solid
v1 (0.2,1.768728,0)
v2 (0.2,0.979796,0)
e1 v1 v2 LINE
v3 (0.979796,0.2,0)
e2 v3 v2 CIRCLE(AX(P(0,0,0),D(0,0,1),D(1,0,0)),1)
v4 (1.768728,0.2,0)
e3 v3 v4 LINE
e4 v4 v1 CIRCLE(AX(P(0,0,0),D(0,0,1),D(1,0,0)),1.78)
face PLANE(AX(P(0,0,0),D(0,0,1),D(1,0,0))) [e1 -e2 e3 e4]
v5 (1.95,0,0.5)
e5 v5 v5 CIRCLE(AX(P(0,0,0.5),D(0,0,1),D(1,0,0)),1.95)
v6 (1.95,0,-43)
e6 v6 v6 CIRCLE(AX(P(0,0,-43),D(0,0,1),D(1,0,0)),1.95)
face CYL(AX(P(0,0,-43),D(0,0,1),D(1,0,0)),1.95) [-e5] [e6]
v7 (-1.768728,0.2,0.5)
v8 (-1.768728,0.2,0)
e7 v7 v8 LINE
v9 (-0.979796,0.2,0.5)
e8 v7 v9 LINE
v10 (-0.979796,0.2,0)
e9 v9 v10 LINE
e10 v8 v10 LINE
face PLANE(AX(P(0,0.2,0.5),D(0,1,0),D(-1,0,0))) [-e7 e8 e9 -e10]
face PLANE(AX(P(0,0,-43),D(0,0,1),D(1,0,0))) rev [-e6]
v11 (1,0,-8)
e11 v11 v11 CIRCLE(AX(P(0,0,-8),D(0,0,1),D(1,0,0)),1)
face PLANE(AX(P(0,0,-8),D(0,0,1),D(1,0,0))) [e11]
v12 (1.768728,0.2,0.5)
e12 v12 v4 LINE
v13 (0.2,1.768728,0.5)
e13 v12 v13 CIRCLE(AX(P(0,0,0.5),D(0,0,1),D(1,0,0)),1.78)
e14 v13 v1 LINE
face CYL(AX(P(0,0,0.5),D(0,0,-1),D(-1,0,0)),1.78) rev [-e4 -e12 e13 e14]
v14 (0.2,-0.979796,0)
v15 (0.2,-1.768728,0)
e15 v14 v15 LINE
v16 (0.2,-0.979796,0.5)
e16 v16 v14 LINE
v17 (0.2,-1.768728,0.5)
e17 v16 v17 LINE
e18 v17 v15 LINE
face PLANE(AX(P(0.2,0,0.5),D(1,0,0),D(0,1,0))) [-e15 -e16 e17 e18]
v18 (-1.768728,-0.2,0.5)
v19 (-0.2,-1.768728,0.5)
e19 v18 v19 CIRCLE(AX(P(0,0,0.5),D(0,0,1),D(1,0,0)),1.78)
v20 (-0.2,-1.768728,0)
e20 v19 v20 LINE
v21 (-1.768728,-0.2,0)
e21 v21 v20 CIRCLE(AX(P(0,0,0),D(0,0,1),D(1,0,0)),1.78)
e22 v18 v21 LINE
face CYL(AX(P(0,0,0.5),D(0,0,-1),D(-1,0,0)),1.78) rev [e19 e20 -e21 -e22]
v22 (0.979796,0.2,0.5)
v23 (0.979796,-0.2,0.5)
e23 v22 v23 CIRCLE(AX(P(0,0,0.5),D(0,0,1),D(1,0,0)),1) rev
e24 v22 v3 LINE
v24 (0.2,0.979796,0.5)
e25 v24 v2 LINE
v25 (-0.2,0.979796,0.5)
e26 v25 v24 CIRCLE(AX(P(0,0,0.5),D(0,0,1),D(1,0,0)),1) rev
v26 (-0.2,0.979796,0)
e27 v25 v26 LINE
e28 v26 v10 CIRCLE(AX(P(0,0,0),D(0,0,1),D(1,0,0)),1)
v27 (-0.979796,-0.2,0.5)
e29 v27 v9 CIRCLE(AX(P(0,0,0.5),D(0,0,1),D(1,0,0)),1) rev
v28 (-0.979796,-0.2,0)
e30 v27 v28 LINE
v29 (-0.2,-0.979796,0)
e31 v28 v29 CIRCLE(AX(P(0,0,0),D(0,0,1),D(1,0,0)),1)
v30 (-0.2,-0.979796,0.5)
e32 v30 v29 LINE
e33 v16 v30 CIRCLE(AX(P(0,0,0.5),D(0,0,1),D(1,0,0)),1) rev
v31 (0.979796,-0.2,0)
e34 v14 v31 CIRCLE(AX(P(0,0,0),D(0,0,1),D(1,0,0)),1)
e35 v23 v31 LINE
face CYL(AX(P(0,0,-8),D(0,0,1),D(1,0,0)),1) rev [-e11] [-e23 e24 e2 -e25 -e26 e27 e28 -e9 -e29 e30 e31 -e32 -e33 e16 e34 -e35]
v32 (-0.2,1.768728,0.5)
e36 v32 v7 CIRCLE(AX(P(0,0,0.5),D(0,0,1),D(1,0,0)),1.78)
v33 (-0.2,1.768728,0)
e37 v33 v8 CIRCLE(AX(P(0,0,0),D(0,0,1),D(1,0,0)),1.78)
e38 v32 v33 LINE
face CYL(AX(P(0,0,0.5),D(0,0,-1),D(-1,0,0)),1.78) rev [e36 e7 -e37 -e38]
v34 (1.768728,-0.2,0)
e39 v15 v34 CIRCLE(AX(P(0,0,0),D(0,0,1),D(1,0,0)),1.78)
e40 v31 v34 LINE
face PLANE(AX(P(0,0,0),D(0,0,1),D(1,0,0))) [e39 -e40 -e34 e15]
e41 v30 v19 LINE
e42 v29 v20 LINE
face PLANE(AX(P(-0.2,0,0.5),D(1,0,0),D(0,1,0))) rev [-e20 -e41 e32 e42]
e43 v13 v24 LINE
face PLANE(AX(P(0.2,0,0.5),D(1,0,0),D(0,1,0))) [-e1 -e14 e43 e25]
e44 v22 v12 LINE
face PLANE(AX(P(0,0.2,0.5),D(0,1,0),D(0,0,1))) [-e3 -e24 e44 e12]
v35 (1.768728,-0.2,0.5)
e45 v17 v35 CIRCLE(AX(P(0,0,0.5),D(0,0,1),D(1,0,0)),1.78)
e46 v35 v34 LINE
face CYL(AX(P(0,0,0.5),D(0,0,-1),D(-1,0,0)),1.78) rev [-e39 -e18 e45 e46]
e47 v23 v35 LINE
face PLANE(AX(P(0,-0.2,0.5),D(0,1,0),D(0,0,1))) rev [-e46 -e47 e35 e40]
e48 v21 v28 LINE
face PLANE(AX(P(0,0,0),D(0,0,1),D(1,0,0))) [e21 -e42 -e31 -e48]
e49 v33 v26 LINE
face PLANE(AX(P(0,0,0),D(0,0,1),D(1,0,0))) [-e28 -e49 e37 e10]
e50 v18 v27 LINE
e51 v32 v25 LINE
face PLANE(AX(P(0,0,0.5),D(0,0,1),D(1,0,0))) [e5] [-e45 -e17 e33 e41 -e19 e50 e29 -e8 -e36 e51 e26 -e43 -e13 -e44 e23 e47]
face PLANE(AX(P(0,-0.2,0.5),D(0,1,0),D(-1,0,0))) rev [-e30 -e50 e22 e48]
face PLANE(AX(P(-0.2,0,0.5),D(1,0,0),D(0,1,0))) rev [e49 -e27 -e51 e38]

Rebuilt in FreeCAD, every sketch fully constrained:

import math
import FreeCAD as App
import Part
import Sketcher
from FreeCAD import Vector

doc = App.newDocument("Part")
params = doc.addObject("Spreadsheet::Sheet", "Params")
for row, (alias, value) in enumerate([
    ("sketch1_diameter", "3.9 mm"),
    ("pad1_length", "43 mm"),
    ("sketch2_diameter", "2 mm"),
    ("pocket1_length", "8 mm"),
    ("sketch3_radius", "1 mm"),
    ("sketch3_radius2", "1.95 mm"),
    ("sketch3_radius3", "1.78 mm"),
    ("pad2_length", "0.5 mm"),
], start=1):
    params.set(f"A{row}", alias)
    params.set(f"B{row}", "=" + value)
    params.setAlias(f"B{row}", alias)

body = doc.addObject("PartDesign::Body", "Body")

# Sketch on XY plane
sketch1 = body.newObject("Sketcher::SketchObject", "Sketch")
sketch1.AttachmentSupport = (doc.getObject("XY_Plane"), [""])
sketch1.MapMode = "FlatFace"
sketch1.addGeometry(Part.Circle(Vector(0, 0, 0), Vector(0, 0, 1), 1.9), False)
sketch1.addConstraint([
    Sketcher.Constraint("Coincident", 0, 3, -1, 1),
    Sketcher.Constraint("Diameter", 0, 3.9),
])
sketch1.setExpression("Constraints[1]", "Params.sketch1_diameter")
pad1 = body.newObject("PartDesign::Pad", "Pad")
pad1.Profile = sketch1
pad1.setExpression("Length", "Params.pad1_length")
pad1.Reversed = True

# Sketch on XY plane
sketch2 = body.newObject("Sketcher::SketchObject", "Sketch001")
sketch2.AttachmentSupport = (doc.getObject("XY_Plane"), [""])
sketch2.MapMode = "FlatFace"
sketch2.addGeometry(Part.Circle(Vector(0, 0, 0), Vector(0, 0, 1), 1), False)
sketch2.addConstraint([
    Sketcher.Constraint("Coincident", 0, 3, -1, 1),
    Sketcher.Constraint("Diameter", 0, 2.0),
])
sketch2.setExpression("Constraints[1]", "Params.sketch2_diameter")
pocket1 = body.newObject("PartDesign::Pocket", "Pocket")
pocket1.Profile = sketch2
pocket1.setExpression("Length", "Params.pocket1_length")

# Sketch on XY plane
sketch3 = body.newObject("Sketcher::SketchObject", "Sketch002")
sketch3.AttachmentSupport = (doc.getObject("XY_Plane"), [""])
sketch3.MapMode = "FlatFace"
sketch3.AttachmentOffset = App.Placement(Vector(0, 0, 0.5), App.Rotation())
sketch3.addGeometry([
    Part.ArcOfCircle(Part.Circle(Vector(0, 0, 0), Vector(0, 0, 1), 1.95), math.radians(174.11), math.radians(185.89)),  # 0
    Part.ArcOfCircle(Part.Circle(Vector(0, 0, 0), Vector(0, 0, 1), 1.95), math.radians(-174), math.radians(-96)),  # 1
    Part.ArcOfCircle(Part.Circle(Vector(0, 0, 0), Vector(0, 0, 1), 1.95), math.radians(-95.89), math.radians(-84.11)),  # 2
    Part.ArcOfCircle(Part.Circle(Vector(0, 0, 0), Vector(0, 0, 1), 1.95), math.radians(-84), math.radians(-6)),  # 3
    Part.ArcOfCircle(Part.Circle(Vector(0, 0, 0), Vector(0, 0, 1), 1.95), math.radians(-5.89), math.radians(0)),  # 4
    Part.ArcOfCircle(Part.Circle(Vector(0, 0, 0), Vector(0, 0, 1), 1.95), math.radians(0), math.radians(5.89)),  # 5
    Part.ArcOfCircle(Part.Circle(Vector(0, 0, 0), Vector(0, 0, 1), 1.95), math.radians(6), math.radians(84)),  # 6
    Part.ArcOfCircle(Part.Circle(Vector(0, 0, 0), Vector(0, 0, 1), 1.95), math.radians(84.11), math.radians(95.89)),  # 7
    Part.ArcOfCircle(Part.Circle(Vector(0, 0, 0), Vector(0, 0, 1), 1.95), math.radians(96), math.radians(174)),  # 8
    Part.ArcOfCircle(Part.Circle(Vector(0, 0, 0), Vector(0, 0, 1), 1.78), math.radians(6), math.radians(84)),  # 9
    Part.LineSegment(Vector(1.77, 0.2, 0), Vector(0.98, 0.2, 0)),  # 10
    Part.ArcOfCircle(Part.Circle(Vector(0, 0, 0), Vector(0, 0, 1), 1), math.radians(0), math.radians(11.54)),  # 11
    Part.ArcOfCircle(Part.Circle(Vector(0, 0, 0), Vector(0, 0, 1), 1), math.radians(-11.54), math.radians(0)),  # 12
    Part.LineSegment(Vector(0.98, -0.2, 0), Vector(1.77, -0.2, 0)),  # 13
    Part.ArcOfCircle(Part.Circle(Vector(0, 0, 0), Vector(0, 0, 1), 1.78), math.radians(-84), math.radians(-6)),  # 14
    Part.LineSegment(Vector(0.2, -1.77, 0), Vector(0.2, -0.98, 0)),  # 15
    Part.ArcOfCircle(Part.Circle(Vector(0, 0, 0), Vector(0, 0, 1), 1), math.radians(-102), math.radians(-78)),  # 16
    Part.LineSegment(Vector(-0.2, -0.98, 0), Vector(-0.2, -1.77, 0)),  # 17
    Part.ArcOfCircle(Part.Circle(Vector(0, 0, 0), Vector(0, 0, 1), 1.78), math.radians(-174), math.radians(-96)),  # 18
    Part.LineSegment(Vector(-1.77, -0.2, 0), Vector(-0.98, -0.2, 0)),  # 19
    Part.ArcOfCircle(Part.Circle(Vector(0, 0, 0), Vector(0, 0, 1), 1), math.radians(168), math.radians(192)),  # 20
    Part.LineSegment(Vector(-0.98, 0.2, 0), Vector(-1.77, 0.2, 0)),  # 21
    Part.ArcOfCircle(Part.Circle(Vector(0, 0, 0), Vector(0, 0, 1), 1.78), math.radians(96), math.radians(174)),  # 22
    Part.LineSegment(Vector(-0.2, 1.77, 0), Vector(-0.2, 0.98, 0)),  # 23
    Part.ArcOfCircle(Part.Circle(Vector(0, 0, 0), Vector(0, 0, 1), 1), math.radians(78), math.radians(102)),  # 24
    Part.LineSegment(Vector(0.2, 0.98, 0), Vector(0.2, 1.77, 0)),  # 25
], False)
sketch3.addConstraint([
    Sketcher.Constraint("Tangent", 0, 2, 1, 1),
    Sketcher.Constraint("Tangent", 1, 2, 2, 1),
    Sketcher.Constraint("Tangent", 2, 2, 3, 1),
    Sketcher.Constraint("Tangent", 3, 2, 4, 1),
    Sketcher.Constraint("Tangent", 4, 2, 5, 1),
    Sketcher.Constraint("Tangent", 5, 2, 6, 1),
    Sketcher.Constraint("Tangent", 6, 2, 7, 1),
    Sketcher.Constraint("Tangent", 7, 2, 8, 1),
    Sketcher.Constraint("Tangent", 8, 2, 0, 1),
    Sketcher.Constraint("Coincident", 9, 1, 10, 1),
    Sketcher.Constraint("Coincident", 10, 2, 11, 2),
    Sketcher.Constraint("Tangent", 11, 1, 12, 2),
    Sketcher.Constraint("Coincident", 12, 1, 13, 1),
    Sketcher.Constraint("Coincident", 13, 2, 14, 2),
    Sketcher.Constraint("Coincident", 14, 1, 15, 1),
    Sketcher.Constraint("Coincident", 15, 2, 16, 2),
    Sketcher.Constraint("Coincident", 16, 1, 17, 1),
    Sketcher.Constraint("Coincident", 17, 2, 18, 2),
    Sketcher.Constraint("Coincident", 18, 1, 19, 1),
    Sketcher.Constraint("Coincident", 19, 2, 20, 2),
    Sketcher.Constraint("Coincident", 20, 1, 21, 1),
    Sketcher.Constraint("Coincident", 21, 2, 22, 2),
    Sketcher.Constraint("Coincident", 22, 1, 23, 1),
    Sketcher.Constraint("Coincident", 23, 2, 24, 2),
    Sketcher.Constraint("Coincident", 24, 1, 25, 1),
    Sketcher.Constraint("Coincident", 25, 2, 9, 2),
    Sketcher.Constraint("Horizontal", 10),
    Sketcher.Constraint("Horizontal", 13),
    Sketcher.Constraint("Vertical", 15),
    Sketcher.Constraint("Vertical", 17),
    Sketcher.Constraint("Horizontal", 19),
    Sketcher.Constraint("Horizontal", 21),
    Sketcher.Constraint("Vertical", 23),
    Sketcher.Constraint("Vertical", 25),
    Sketcher.Constraint("Coincident", 0, 3, -1, 1),
    Sketcher.Constraint("Coincident", 2, 3, -1, 1),
    Sketcher.Constraint("Coincident", 4, 3, -1, 1),
    Sketcher.Constraint("Coincident", 6, 3, -1, 1),
    Sketcher.Constraint("Coincident", 9, 3, -1, 1),
    Sketcher.Constraint("Coincident", 11, 3, -1, 1),
    Sketcher.Constraint("Coincident", 14, 3, -1, 1),
    Sketcher.Constraint("Coincident", 16, 3, -1, 1),
    Sketcher.Constraint("Coincident", 18, 3, -1, 1),
    Sketcher.Constraint("Coincident", 20, 3, -1, 1),
    Sketcher.Constraint("Coincident", 22, 3, -1, 1),
    Sketcher.Constraint("Coincident", 24, 3, -1, 1),
    Sketcher.Constraint("Equal", 11, 12),
    Sketcher.Constraint("Equal", 9, 14),
    Sketcher.Constraint("Equal", 12, 16),
    Sketcher.Constraint("Equal", 14, 18),
    Sketcher.Constraint("Equal", 16, 20),
    Sketcher.Constraint("Equal", 18, 22),
    Sketcher.Constraint("Equal", 20, 24),
    Sketcher.Constraint("PointOnObject", 4, 2, -1),
    Sketcher.Constraint("PointOnObject", 11, 1, -1),
    Sketcher.Constraint("Horizontal", 1, 2, 2, 2),
    Sketcher.Constraint("Horizontal", 0, 2, 3, 2),
    Sketcher.Constraint("Horizontal", 6, 2, 7, 2),
    Sketcher.Constraint("Horizontal", 5, 2, 8, 2),
    Sketcher.Constraint("Horizontal", 8, 2, 9, 1),
    Sketcher.Constraint("Horizontal", 3, 2, 12, 1),
    Sketcher.Constraint("Horizontal", 15, 2, 16, 1),
    Sketcher.Constraint("Horizontal", 13, 2, 18, 1),
    Sketcher.Constraint("Horizontal", 10, 2, 20, 1),
    Sketcher.Constraint("Horizontal", 23, 2, 24, 1),
    Sketcher.Constraint("Vertical", 3, 2, 5, 2),
    Sketcher.Constraint("Vertical", 2, 2, 6, 2),
    Sketcher.Constraint("Vertical", 6, 2, 14, 1),
    Sketcher.Constraint("Vertical", 17, 2, 22, 1),
    Sketcher.Constraint("Equal", 21, 15),
    Sketcher.Constraint("Radius", 11, 1.0),
    Sketcher.Constraint("Radius", 0, 1.95),
    Sketcher.Constraint("Radius", 9, 1.78),
    Sketcher.Constraint("DistanceY", 0, 2, -1, 1, 0.2),
])
sketch3.setExpression("Constraints[70]", "Params.sketch3_radius")
sketch3.setExpression("Constraints[71]", "Params.sketch3_radius2")
sketch3.setExpression("Constraints[72]", "Params.sketch3_radius3")
pad2 = body.newObject("PartDesign::Pad", "Pad001")
pad2.Profile = sketch3
pad2.setExpression("Length", "Params.pad2_length")
pad2.Reversed = True

doc.recompute()
